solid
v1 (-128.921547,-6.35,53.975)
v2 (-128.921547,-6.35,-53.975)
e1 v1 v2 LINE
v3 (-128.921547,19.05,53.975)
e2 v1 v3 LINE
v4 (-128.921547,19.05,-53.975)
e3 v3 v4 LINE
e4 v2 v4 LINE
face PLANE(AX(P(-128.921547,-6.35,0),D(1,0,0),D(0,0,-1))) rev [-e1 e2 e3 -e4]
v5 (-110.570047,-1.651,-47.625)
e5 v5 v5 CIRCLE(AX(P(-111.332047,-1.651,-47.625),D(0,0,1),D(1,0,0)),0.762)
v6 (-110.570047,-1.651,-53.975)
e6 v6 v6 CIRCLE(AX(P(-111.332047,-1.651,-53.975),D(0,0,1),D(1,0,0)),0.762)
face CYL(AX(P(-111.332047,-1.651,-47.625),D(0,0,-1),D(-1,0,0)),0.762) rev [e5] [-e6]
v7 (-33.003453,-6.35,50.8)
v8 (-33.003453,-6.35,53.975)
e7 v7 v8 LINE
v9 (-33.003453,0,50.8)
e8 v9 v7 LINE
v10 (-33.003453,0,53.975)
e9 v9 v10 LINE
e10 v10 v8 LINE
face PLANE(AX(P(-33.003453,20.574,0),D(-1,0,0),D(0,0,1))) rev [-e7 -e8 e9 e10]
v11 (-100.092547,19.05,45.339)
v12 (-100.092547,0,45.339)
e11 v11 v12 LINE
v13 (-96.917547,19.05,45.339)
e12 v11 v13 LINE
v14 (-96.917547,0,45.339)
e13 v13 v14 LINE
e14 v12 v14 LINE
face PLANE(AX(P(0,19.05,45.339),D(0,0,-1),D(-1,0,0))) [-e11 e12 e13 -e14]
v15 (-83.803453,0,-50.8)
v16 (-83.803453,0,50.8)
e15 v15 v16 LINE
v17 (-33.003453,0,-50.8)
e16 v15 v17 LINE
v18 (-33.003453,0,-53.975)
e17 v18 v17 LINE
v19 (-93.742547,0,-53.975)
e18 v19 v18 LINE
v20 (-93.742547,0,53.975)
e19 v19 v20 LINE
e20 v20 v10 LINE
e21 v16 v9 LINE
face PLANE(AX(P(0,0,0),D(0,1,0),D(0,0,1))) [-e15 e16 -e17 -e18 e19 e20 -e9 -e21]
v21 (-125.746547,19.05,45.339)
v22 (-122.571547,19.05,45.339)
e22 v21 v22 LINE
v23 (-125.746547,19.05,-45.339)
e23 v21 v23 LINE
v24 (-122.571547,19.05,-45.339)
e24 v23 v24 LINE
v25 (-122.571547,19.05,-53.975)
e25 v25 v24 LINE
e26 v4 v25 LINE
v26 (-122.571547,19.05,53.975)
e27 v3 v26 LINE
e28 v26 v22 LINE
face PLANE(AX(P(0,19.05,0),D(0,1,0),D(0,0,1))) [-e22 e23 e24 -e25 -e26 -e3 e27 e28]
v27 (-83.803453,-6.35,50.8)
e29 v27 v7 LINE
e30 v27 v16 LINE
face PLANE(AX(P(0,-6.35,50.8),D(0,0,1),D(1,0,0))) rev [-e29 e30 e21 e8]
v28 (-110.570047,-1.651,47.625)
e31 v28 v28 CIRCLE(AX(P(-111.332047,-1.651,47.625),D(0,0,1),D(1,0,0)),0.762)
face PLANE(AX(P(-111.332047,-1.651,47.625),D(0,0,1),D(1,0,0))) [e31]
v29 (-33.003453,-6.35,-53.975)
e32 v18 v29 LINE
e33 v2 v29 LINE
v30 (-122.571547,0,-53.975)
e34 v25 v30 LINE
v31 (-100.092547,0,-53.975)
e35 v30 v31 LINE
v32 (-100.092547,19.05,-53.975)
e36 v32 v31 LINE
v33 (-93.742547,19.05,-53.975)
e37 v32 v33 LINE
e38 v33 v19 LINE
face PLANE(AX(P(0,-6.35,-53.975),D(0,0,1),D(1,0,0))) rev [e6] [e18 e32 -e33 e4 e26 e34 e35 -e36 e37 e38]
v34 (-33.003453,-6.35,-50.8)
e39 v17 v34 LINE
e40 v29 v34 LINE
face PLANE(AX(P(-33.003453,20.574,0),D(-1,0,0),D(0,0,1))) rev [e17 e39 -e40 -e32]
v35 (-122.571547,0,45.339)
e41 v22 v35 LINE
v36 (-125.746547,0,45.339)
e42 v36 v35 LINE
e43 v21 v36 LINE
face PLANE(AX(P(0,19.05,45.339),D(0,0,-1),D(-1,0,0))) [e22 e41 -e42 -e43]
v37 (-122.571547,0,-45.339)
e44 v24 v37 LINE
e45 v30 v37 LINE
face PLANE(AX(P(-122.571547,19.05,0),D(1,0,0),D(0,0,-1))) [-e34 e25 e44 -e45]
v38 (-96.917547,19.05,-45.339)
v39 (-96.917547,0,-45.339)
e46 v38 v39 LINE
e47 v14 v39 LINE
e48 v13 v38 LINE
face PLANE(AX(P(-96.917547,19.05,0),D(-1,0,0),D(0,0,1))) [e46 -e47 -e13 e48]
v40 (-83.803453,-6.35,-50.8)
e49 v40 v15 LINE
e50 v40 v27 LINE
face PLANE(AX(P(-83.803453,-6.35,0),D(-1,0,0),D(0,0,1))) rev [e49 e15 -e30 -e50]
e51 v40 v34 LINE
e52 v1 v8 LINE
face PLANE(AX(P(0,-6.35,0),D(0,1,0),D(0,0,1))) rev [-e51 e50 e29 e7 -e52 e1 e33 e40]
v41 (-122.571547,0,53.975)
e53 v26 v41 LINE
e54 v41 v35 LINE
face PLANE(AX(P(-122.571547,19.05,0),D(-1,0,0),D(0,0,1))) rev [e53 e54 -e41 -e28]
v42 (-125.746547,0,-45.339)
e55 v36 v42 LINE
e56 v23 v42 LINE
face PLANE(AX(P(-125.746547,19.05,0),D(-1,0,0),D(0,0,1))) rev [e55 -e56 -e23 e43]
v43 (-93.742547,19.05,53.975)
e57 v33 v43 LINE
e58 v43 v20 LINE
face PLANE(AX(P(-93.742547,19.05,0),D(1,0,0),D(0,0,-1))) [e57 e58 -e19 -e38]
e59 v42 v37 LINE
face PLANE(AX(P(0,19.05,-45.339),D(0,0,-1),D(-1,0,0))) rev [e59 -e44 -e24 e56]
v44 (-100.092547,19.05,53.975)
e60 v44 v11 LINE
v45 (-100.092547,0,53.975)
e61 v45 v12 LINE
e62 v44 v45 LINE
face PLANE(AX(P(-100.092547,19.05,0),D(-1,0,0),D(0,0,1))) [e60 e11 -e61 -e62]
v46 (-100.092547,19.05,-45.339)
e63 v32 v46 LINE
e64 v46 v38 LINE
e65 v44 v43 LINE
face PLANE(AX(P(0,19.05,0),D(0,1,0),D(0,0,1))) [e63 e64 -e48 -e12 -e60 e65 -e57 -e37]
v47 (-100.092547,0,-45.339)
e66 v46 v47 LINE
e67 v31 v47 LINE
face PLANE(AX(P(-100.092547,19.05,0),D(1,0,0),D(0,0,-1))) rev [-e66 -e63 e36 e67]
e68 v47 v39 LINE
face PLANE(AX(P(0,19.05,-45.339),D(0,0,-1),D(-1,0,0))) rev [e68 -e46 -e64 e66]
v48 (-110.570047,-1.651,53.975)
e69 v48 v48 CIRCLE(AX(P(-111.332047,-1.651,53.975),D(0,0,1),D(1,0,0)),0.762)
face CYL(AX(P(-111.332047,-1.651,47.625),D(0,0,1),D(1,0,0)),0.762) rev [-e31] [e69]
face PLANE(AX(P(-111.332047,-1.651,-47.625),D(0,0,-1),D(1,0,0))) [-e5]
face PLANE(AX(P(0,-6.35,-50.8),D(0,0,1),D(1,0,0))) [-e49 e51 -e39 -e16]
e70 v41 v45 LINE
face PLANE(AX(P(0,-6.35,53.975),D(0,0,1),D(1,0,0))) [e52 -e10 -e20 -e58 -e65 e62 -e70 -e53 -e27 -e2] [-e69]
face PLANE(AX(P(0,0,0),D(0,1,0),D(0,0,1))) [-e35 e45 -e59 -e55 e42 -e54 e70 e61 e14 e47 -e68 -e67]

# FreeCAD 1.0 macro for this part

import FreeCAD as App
import Part
import Sketcher
from FreeCAD import Vector
Q = App.Units.Quantity

doc = App.newDocument("Part")
body = doc.addObject("PartDesign::Body", "Body")

# Sketch on XZ plane
sketch1 = body.newObject("Sketcher::SketchObject", "Sketch")
sketch1.AttachmentSupport = (doc.getObject("XZ_Plane"), [""])
sketch1.MapMode = "FlatFace"
sketch1.addGeometry([
    Part.LineSegment(Vector(-128.921547, -53.975, 0), Vector(-128.921547, 53.975, 0)),
    Part.LineSegment(Vector(-128.921547, 53.975, 0), Vector(128.921547, 53.975, 0)),
    Part.LineSegment(Vector(128.921547, 53.975, 0), Vector(128.921547, -53.975, 0)),
    Part.LineSegment(Vector(128.921547, -53.975, 0), Vector(-128.921547, -53.975, 0)),
], False)
sketch1.addConstraint([
    Sketcher.Constraint("Coincident", 0, 2, 1, 1),
    Sketcher.Constraint("Coincident", 1, 2, 2, 1),
    Sketcher.Constraint("Coincident", 2, 2, 3, 1),
    Sketcher.Constraint("Coincident", 3, 2, 0, 1),
    Sketcher.Constraint("Vertical", 0),
    Sketcher.Constraint("Horizontal", 1),
    Sketcher.Constraint("Vertical", 2),
    Sketcher.Constraint("Horizontal", 3),
    Sketcher.Constraint("Symmetric", 0, 2, 2, 2, -1, 1),
    Sketcher.Constraint("DistanceY", 0, 1, 0, 2, Q("4.25 in")),
    Sketcher.Constraint("DistanceX", 1, 1, 1, 2, Q("257.843095 mm")),
])
pad1 = body.newObject("PartDesign::Pad", "Pad")
pad1.Profile = sketch1
pad1.Length = Q("0.25 in")

# Sketch on XZ plane
sketch2 = body.newObject("Sketcher::SketchObject", "Sketch001")
sketch2.AttachmentSupport = (doc.getObject("XZ_Plane"), [""])
sketch2.MapMode = "FlatFace"
sketch2.addGeometry([
    Part.LineSegment(Vector(-128.921547, -53.975, 0), Vector(-128.921547, 53.975, 0)),  # 0
    Part.LineSegment(Vector(-128.921547, 53.975, 0), Vector(-122.571547, 53.975, 0)),  # 1
    Part.LineSegment(Vector(-122.571547, 53.975, 0), Vector(-122.571547, 45.339, 0)),  # 2
    Part.LineSegment(Vector(-122.571547, 45.339, 0), Vector(-125.746547, 45.339, 0)),  # 3
    Part.LineSegment(Vector(-125.746547, 45.339, 0), Vector(-125.746547, -45.339, 0)),  # 4
    Part.LineSegment(Vector(-125.746547, -45.339, 0), Vector(-122.571547, -45.339, 0)),  # 5
    Part.LineSegment(Vector(-122.571547, -45.339, 0), Vector(-122.571547, -53.975, 0)),  # 6
    Part.LineSegment(Vector(-122.571547, -53.975, 0), Vector(-128.921547, -53.975, 0)),  # 7
    Part.LineSegment(Vector(-93.742547, -53.975, 0), Vector(-100.092547, -53.975, 0)),  # 8
    Part.LineSegment(Vector(-100.092547, -53.975, 0), Vector(-100.092547, -45.339, 0)),  # 9
    Part.LineSegment(Vector(-100.092547, -45.339, 0), Vector(-96.917547, -45.339, 0)),  # 10
    Part.LineSegment(Vector(-96.917547, -45.339, 0), Vector(-96.917547, 45.339, 0)),  # 11
    Part.LineSegment(Vector(-96.917547, 45.339, 0), Vector(-100.092547, 45.339, 0)),  # 12
    Part.LineSegment(Vector(-100.092547, 45.339, 0), Vector(-100.092547, 53.975, 0)),  # 13
    Part.LineSegment(Vector(-100.092547, 53.975, 0), Vector(-93.742547, 53.975, 0)),  # 14
    Part.LineSegment(Vector(-93.742547, 53.975, 0), Vector(-93.742547, -53.975, 0)),  # 15
], False)
sketch2.addConstraint([
    Sketcher.Constraint("Coincident", 0, 2, 1, 1),
    Sketcher.Constraint("Coincident", 1, 2, 2, 1),
    Sketcher.Constraint("Coincident", 2, 2, 3, 1),
    Sketcher.Constraint("Coincident", 3, 2, 4, 1),
    Sketcher.Constraint("Coincident", 4, 2, 5, 1),
    Sketcher.Constraint("Coincident", 5, 2, 6, 1),
    Sketcher.Constraint("Coincident", 6, 2, 7, 1),
    Sketcher.Constraint("Coincident", 7, 2, 0, 1),
    Sketcher.Constraint("Coincident", 8, 2, 9, 1),
    Sketcher.Constraint("Coincident", 9, 2, 10, 1),
    Sketcher.Constraint("Coincident", 10, 2, 11, 1),
    Sketcher.Constraint("Coincident", 11, 2, 12, 1),
    Sketcher.Constraint("Coincident", 12, 2, 13, 1),
    Sketcher.Constraint("Coincident", 13, 2, 14, 1),
    Sketcher.Constraint("Coincident", 14, 2, 15, 1),
    Sketcher.Constraint("Coincident", 15, 2, 8, 1),
    Sketcher.Constraint("Vertical", 0),
    Sketcher.Constraint("Horizontal", 1),
    Sketcher.Constraint("Vertical", 2),
    Sketcher.Constraint("Horizontal", 3),
    Sketcher.Constraint("Vertical", 4),
    Sketcher.Constraint("Horizontal", 5),
    Sketcher.Constraint("Vertical", 6),
    Sketcher.Constraint("Horizontal", 7),
    Sketcher.Constraint("Horizontal", 8),
    Sketcher.Constraint("Vertical", 9),
    Sketcher.Constraint("Horizontal", 10),
    Sketcher.Constraint("Vertical", 11),
    Sketcher.Constraint("Horizontal", 12),
    Sketcher.Constraint("Vertical", 13),
    Sketcher.Constraint("Horizontal", 14),
    Sketcher.Constraint("Vertical", 15),
    Sketcher.Constraint("Symmetric", 2, 2, 5, 2, -1),
    Sketcher.Constraint("Symmetric", 9, 2, 12, 2, -1),
    Sketcher.Constraint("Horizontal", 7, 2, 8, 2),
    Sketcher.Constraint("Horizontal", 5, 2, 9, 2),
    Sketcher.Constraint("Horizontal", 1, 2, 13, 2),
    Sketcher.Constraint("Equal", 7, 8),
    Sketcher.Constraint("Equal", 5, 10),
    Sketcher.Constraint("Equal", 2, 6),
    Sketcher.Constraint("DistanceX", 1, 1, 1, 2, Q("0.25 in")),
    Sketcher.Constraint("DistanceY", 0, 1, 0, 2, Q("4.25 in")),
    Sketcher.Constraint("DistanceY", 2, 2, 2, 1, Q("0.34 in")),
    Sketcher.Constraint("DistanceX", 3, 2, 3, 1, Q("0.125 in")),
    Sketcher.Constraint("DistanceX", 4, 2, 8, 2, Q("1.01 in")),
    Sketcher.Constraint("DistanceX", 0, 2, -1, 1, Q("128.921547 mm")),
])
pad2 = body.newObject("PartDesign::Pad", "Pad001")
pad2.Profile = sketch2
pad2.Length = Q("0.75 in")
pad2.Reversed = True

# Sketch on XY plane
sketch3 = body.newObject("Sketcher::SketchObject", "Sketch002")
sketch3.AttachmentSupport = (doc.getObject("XY_Plane"), [""])
sketch3.MapMode = "FlatFace"
sketch3.AttachmentOffset = App.Placement(Vector(0, 0, 2.125 * 25.4), App.Rotation())
sketch3.addGeometry(Part.Circle(Vector(-111.332047, -1.651, 0), Vector(0, 0, 1), 0.762), False)
sketch3.addConstraint([
    Sketcher.Constraint("Diameter", 0, Q("0.06 in")),
    Sketcher.Constraint("DistanceY", 0, 3, -1, 1, Q("0.065 in")),
    Sketcher.Constraint("DistanceX", 0, 3, -1, 1, Q("111.332047 mm")),
])
pocket1 = body.newObject("PartDesign::Pocket", "Pocket")
pocket1.Profile = sketch3
pocket1.Length = Q("0.25 in")
doc.recompute()

mirrored = body.newObject("PartDesign::Mirrored", "Mirrored")
mirrored.Originals = [pocket1]
mirrored.MirrorPlane = (doc.getObject("XY_Plane"), [""])
body.Tip = mirrored

# Sketch on XZ plane
sketch4 = body.newObject("Sketcher::SketchObject", "Sketch003")
sketch4.AttachmentSupport = (doc.getObject("XZ_Plane"), [""])
sketch4.MapMode = "FlatFace"
sketch4.addGeometry([
    Part.LineSegment(Vector(-83.803453, -50.8, 0), Vector(-83.803453, 50.8, 0)),
    Part.LineSegment(Vector(-83.803453, 50.8, 0), Vector(17.796547, 50.8, 0)),
    Part.LineSegment(Vector(17.796547, 50.8, 0), Vector(17.796547, -50.8, 0)),
    Part.LineSegment(Vector(17.796547, -50.8, 0), Vector(-83.803453, -50.8, 0)),
], False)
sketch4.addConstraint([
    Sketcher.Constraint("Coincident", 0, 2, 1, 1),
    Sketcher.Constraint("Coincident", 1, 2, 2, 1),
    Sketcher.Constraint("Coincident", 2, 2, 3, 1),
    Sketcher.Constraint("Coincident", 3, 2, 0, 1),
    Sketcher.Constraint("Vertical", 0),
    Sketcher.Constraint("Horizontal", 1),
    Sketcher.Constraint("Vertical", 2),
    Sketcher.Constraint("Horizontal", 3),
    Sketcher.Constraint("Equal", 3, 0),
    Sketcher.Constraint("DistanceX", 1, 1, 1, 2, Q("4 in")),
    Sketcher.Constraint("DistanceY", -1, 1, 0, 2, Q("2 in")),
    Sketcher.Constraint("DistanceX", 0, 2, -1, 1, Q("83.803453 mm")),
])
pocket2 = body.newObject("PartDesign::Pocket", "Pocket001")
pocket2.Profile = sketch4
pocket2.Length = Q("0.25 in")
pocket2.Reversed = True

# Sketch on XZ plane
sketch5 = body.newObject("Sketcher::SketchObject", "Sketch004")
sketch5.AttachmentSupport = (doc.getObject("XZ_Plane"), [""])
sketch5.MapMode = "FlatFace"
sketch5.addGeometry([
    Part.LineSegment(Vector(-33.003453, -81.208416, 0), Vector(-33.003453, 61.928852, 0)),
    Part.LineSegment(Vector(-33.003453, 61.928852, 0), Vector(144.32523, 61.928852, 0)),
    Part.LineSegment(Vector(144.32523, 61.928852, 0), Vector(144.32523, -81.208416, 0)),
    Part.LineSegment(Vector(144.32523, -81.208416, 0), Vector(-33.003453, -81.208416, 0)),
], False)
sketch5.addConstraint([
    Sketcher.Constraint("Coincident", 0, 2, 1, 1),
    Sketcher.Constraint("Coincident", 1, 2, 2, 1),
    Sketcher.Constraint("Coincident", 2, 2, 3, 1),
    Sketcher.Constraint("Coincident", 3, 2, 0, 1),
    Sketcher.Constraint("Vertical", 0),
    Sketcher.Constraint("Horizontal", 1),
    Sketcher.Constraint("Vertical", 2),
    Sketcher.Constraint("Horizontal", 3),
    Sketcher.Constraint("DistanceX", 1, 1, 1, 2, Q("177.328683 mm")),
    Sketcher.Constraint("DistanceY", 0, 1, 0, 2, Q("143.137268 mm")),
    Sketcher.Constraint("DistanceY", -1, 1, 0, 2, Q("61.928852 mm")),
    Sketcher.Constraint("DistanceX", -1, 1, 1, 2, Q("144.32523 mm")),
])
pocket3 = body.newObject("PartDesign::Pocket", "Pocket002")
pocket3.Profile = sketch5
pocket3.Type = "ThroughAll"
pocket3.Midplane = True

doc.recompute()
